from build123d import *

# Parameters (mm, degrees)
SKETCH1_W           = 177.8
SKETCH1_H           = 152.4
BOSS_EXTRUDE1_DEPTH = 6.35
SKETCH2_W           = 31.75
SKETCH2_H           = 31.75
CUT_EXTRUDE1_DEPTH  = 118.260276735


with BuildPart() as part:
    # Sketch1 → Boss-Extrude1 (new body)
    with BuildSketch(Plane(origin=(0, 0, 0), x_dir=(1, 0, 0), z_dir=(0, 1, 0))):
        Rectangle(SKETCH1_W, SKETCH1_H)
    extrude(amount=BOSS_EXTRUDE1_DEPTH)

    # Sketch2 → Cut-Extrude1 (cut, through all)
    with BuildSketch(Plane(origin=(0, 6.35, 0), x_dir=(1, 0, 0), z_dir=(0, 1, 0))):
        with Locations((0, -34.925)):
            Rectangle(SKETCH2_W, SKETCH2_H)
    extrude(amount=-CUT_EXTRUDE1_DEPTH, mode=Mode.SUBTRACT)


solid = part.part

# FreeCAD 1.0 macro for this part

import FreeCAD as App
import Part
import Sketcher
Q = App.Units.Quantity


def add_polygon(sketch, points):
    """Adds a closed chain of lines whose ends are joined by coincident constraints."""
    first, n = sketch.GeometryCount, len(points)
    for a, b in zip(points, points[1:] + points[:1]):
        sketch.addGeometry(Part.LineSegment(App.Vector(*a, 0), App.Vector(*b, 0)), False)
    for i in range(n):
        sketch.addConstraint(Sketcher.Constraint("Coincident", first + i, 2, first + (i + 1) % n, 1))

doc = App.newDocument("Part")
body = doc.addObject("PartDesign::Body", "Body")

sketch1 = doc.addObject("Sketcher::SketchObject", "Sketch")
body.addObject(sketch1)
sketch1.AttachmentSupport = (doc.XZ_Plane, [""])
sketch1.MapMode = "FlatFace"
add_polygon(sketch1, [(-89, -76), (-89, 76), (89, 76), (89, -76)])
sketch1.addConstraint([
    Sketcher.Constraint("Vertical", 0),
    Sketcher.Constraint("Horizontal", 1),
    Sketcher.Constraint("Vertical", 2),
    Sketcher.Constraint("Horizontal", 3),
    Sketcher.Constraint("Symmetric", 0, 2, 2, 2, -1, 1),
    Sketcher.Constraint("DistanceX", 1, 1, 1, 2, Q("7 in")),
    Sketcher.Constraint("DistanceY", 0, 1, 0, 2, Q("6 in")),
])
pad1 = doc.addObject("PartDesign::Pad", "Pad")
body.addObject(pad1)
pad1.Profile = sketch1
pad1.Length = Q("0.25 in")
pad1.Reversed = True

sketch2 = doc.addObject("Sketcher::SketchObject", "Sketch001")
body.addObject(sketch2)
sketch2.AttachmentSupport = (doc.XZ_Plane, [""])
sketch2.MapMode = "FlatFace"
sketch2.AttachmentOffset = App.Placement(App.Vector(0, 0, -0.25 * 25.4), App.Rotation())
add_polygon(sketch2, [(-16, 19), (-16, 51), (16, 51), (16, 19)])
sketch2.addConstraint([
    Sketcher.Constraint("Vertical", 0),
    Sketcher.Constraint("Horizontal", 1),
    Sketcher.Constraint("Vertical", 2),
    Sketcher.Constraint("Horizontal", 3),
    Sketcher.Constraint("Equal", 3, 0),
    Sketcher.Constraint("DistanceY", -1, 1, 0, 2, Q("2 in")),
    Sketcher.Constraint("DistanceX", 1, 1, 1, 2, Q("1.25 in")),
    Sketcher.Constraint("DistanceX", 0, 2, -1, 1, Q("0.625 in")),
])
pocket1 = doc.addObject("PartDesign::Pocket", "Pocket")
body.addObject(pocket1)
pocket1.Profile = sketch2
pocket1.Type = "ThroughAll"
pocket1.Reversed = True

doc.recompute()
